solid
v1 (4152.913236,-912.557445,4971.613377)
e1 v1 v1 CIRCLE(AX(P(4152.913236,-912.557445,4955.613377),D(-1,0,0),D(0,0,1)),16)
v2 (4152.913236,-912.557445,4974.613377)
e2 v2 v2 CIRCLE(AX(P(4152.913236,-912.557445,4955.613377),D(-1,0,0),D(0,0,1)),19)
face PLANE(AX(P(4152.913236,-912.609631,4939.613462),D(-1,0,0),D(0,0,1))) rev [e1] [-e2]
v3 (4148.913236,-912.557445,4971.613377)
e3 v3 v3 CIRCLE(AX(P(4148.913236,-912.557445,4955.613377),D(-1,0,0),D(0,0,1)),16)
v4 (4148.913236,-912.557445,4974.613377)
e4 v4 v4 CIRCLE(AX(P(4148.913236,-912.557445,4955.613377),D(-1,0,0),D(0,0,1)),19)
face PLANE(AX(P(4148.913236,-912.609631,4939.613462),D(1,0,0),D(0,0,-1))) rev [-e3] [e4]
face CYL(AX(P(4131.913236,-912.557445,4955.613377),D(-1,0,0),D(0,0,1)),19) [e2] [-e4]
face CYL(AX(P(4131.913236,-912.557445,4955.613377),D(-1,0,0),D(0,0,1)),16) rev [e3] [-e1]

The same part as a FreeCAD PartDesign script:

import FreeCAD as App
import Part
import Sketcher
from FreeCAD import Vector
Q = App.Units.Quantity


def add_polygon(sketch, points):
    """Adds a closed chain of lines whose ends are joined by coincident constraints."""
    first, n = sketch.GeometryCount, len(points)
    for a, b in zip(points, points[1:] + points[:1]):
        sketch.addGeometry(Part.LineSegment(App.Vector(*a, 0), App.Vector(*b, 0)), False)
    for i in range(n):
        sketch.addConstraint(Sketcher.Constraint("Coincident", first + i, 2, first + (i + 1) % n, 1))

doc = App.newDocument("Part")
body = doc.addObject("PartDesign::Body", "Body")

sketch1 = body.newObject("Sketcher::SketchObject", "Sketch")
sketch1.Placement = App.Placement(Vector(0, -928.710779, 3.02908), App.Rotation(Vector(1, 0, 0), Vector(0, -0.00326158, -0.999994681), Vector(0, 0.999994681, -0.00326158), "ZXY"))
add_polygon(sketch1, [(4148.913236, -4933.61064), (4148.913236, -4936.61064), (4152.913236, -4936.61064), (4152.913236, -4933.61064)])
sketch1.addGeometry(Part.LineSegment(Vector(4148.913236, -4952.61064, 0), Vector(4152.913236, -4952.61064, 0)), True)
sketch1.addConstraint([
    Sketcher.Constraint("Vertical", 0),
    Sketcher.Constraint("Horizontal", 1),
    Sketcher.Constraint("Vertical", 2),
    Sketcher.Constraint("Horizontal", 3),
    Sketcher.Constraint("Horizontal", 4),
    Sketcher.Constraint("Vertical", 3, 2, 4, 1),
    Sketcher.Constraint("Vertical", 2, 2, 4, 2),
    Sketcher.Constraint("DistanceX", 1, 1, 1, 2, Q("4 mm")),
    Sketcher.Constraint("DistanceY", 0, 2, 0, 1, Q("3 mm")),
    Sketcher.Constraint("DistanceY", 4, 1, 0, 2, Q("16 mm")),
    Sketcher.Constraint("DistanceY", 0, 2, -1, 1, Q("4936.61064 mm")),
    Sketcher.Constraint("DistanceX", -1, 1, 0, 2, Q("4148.913236 mm")),
])
revolution = body.newObject("PartDesign::Revolution", "Revolution")
revolution.Profile = sketch1
revolution.ReferenceAxis = (sketch1, ["Axis0"])
revolution.Angle = 360

doc.recompute()
